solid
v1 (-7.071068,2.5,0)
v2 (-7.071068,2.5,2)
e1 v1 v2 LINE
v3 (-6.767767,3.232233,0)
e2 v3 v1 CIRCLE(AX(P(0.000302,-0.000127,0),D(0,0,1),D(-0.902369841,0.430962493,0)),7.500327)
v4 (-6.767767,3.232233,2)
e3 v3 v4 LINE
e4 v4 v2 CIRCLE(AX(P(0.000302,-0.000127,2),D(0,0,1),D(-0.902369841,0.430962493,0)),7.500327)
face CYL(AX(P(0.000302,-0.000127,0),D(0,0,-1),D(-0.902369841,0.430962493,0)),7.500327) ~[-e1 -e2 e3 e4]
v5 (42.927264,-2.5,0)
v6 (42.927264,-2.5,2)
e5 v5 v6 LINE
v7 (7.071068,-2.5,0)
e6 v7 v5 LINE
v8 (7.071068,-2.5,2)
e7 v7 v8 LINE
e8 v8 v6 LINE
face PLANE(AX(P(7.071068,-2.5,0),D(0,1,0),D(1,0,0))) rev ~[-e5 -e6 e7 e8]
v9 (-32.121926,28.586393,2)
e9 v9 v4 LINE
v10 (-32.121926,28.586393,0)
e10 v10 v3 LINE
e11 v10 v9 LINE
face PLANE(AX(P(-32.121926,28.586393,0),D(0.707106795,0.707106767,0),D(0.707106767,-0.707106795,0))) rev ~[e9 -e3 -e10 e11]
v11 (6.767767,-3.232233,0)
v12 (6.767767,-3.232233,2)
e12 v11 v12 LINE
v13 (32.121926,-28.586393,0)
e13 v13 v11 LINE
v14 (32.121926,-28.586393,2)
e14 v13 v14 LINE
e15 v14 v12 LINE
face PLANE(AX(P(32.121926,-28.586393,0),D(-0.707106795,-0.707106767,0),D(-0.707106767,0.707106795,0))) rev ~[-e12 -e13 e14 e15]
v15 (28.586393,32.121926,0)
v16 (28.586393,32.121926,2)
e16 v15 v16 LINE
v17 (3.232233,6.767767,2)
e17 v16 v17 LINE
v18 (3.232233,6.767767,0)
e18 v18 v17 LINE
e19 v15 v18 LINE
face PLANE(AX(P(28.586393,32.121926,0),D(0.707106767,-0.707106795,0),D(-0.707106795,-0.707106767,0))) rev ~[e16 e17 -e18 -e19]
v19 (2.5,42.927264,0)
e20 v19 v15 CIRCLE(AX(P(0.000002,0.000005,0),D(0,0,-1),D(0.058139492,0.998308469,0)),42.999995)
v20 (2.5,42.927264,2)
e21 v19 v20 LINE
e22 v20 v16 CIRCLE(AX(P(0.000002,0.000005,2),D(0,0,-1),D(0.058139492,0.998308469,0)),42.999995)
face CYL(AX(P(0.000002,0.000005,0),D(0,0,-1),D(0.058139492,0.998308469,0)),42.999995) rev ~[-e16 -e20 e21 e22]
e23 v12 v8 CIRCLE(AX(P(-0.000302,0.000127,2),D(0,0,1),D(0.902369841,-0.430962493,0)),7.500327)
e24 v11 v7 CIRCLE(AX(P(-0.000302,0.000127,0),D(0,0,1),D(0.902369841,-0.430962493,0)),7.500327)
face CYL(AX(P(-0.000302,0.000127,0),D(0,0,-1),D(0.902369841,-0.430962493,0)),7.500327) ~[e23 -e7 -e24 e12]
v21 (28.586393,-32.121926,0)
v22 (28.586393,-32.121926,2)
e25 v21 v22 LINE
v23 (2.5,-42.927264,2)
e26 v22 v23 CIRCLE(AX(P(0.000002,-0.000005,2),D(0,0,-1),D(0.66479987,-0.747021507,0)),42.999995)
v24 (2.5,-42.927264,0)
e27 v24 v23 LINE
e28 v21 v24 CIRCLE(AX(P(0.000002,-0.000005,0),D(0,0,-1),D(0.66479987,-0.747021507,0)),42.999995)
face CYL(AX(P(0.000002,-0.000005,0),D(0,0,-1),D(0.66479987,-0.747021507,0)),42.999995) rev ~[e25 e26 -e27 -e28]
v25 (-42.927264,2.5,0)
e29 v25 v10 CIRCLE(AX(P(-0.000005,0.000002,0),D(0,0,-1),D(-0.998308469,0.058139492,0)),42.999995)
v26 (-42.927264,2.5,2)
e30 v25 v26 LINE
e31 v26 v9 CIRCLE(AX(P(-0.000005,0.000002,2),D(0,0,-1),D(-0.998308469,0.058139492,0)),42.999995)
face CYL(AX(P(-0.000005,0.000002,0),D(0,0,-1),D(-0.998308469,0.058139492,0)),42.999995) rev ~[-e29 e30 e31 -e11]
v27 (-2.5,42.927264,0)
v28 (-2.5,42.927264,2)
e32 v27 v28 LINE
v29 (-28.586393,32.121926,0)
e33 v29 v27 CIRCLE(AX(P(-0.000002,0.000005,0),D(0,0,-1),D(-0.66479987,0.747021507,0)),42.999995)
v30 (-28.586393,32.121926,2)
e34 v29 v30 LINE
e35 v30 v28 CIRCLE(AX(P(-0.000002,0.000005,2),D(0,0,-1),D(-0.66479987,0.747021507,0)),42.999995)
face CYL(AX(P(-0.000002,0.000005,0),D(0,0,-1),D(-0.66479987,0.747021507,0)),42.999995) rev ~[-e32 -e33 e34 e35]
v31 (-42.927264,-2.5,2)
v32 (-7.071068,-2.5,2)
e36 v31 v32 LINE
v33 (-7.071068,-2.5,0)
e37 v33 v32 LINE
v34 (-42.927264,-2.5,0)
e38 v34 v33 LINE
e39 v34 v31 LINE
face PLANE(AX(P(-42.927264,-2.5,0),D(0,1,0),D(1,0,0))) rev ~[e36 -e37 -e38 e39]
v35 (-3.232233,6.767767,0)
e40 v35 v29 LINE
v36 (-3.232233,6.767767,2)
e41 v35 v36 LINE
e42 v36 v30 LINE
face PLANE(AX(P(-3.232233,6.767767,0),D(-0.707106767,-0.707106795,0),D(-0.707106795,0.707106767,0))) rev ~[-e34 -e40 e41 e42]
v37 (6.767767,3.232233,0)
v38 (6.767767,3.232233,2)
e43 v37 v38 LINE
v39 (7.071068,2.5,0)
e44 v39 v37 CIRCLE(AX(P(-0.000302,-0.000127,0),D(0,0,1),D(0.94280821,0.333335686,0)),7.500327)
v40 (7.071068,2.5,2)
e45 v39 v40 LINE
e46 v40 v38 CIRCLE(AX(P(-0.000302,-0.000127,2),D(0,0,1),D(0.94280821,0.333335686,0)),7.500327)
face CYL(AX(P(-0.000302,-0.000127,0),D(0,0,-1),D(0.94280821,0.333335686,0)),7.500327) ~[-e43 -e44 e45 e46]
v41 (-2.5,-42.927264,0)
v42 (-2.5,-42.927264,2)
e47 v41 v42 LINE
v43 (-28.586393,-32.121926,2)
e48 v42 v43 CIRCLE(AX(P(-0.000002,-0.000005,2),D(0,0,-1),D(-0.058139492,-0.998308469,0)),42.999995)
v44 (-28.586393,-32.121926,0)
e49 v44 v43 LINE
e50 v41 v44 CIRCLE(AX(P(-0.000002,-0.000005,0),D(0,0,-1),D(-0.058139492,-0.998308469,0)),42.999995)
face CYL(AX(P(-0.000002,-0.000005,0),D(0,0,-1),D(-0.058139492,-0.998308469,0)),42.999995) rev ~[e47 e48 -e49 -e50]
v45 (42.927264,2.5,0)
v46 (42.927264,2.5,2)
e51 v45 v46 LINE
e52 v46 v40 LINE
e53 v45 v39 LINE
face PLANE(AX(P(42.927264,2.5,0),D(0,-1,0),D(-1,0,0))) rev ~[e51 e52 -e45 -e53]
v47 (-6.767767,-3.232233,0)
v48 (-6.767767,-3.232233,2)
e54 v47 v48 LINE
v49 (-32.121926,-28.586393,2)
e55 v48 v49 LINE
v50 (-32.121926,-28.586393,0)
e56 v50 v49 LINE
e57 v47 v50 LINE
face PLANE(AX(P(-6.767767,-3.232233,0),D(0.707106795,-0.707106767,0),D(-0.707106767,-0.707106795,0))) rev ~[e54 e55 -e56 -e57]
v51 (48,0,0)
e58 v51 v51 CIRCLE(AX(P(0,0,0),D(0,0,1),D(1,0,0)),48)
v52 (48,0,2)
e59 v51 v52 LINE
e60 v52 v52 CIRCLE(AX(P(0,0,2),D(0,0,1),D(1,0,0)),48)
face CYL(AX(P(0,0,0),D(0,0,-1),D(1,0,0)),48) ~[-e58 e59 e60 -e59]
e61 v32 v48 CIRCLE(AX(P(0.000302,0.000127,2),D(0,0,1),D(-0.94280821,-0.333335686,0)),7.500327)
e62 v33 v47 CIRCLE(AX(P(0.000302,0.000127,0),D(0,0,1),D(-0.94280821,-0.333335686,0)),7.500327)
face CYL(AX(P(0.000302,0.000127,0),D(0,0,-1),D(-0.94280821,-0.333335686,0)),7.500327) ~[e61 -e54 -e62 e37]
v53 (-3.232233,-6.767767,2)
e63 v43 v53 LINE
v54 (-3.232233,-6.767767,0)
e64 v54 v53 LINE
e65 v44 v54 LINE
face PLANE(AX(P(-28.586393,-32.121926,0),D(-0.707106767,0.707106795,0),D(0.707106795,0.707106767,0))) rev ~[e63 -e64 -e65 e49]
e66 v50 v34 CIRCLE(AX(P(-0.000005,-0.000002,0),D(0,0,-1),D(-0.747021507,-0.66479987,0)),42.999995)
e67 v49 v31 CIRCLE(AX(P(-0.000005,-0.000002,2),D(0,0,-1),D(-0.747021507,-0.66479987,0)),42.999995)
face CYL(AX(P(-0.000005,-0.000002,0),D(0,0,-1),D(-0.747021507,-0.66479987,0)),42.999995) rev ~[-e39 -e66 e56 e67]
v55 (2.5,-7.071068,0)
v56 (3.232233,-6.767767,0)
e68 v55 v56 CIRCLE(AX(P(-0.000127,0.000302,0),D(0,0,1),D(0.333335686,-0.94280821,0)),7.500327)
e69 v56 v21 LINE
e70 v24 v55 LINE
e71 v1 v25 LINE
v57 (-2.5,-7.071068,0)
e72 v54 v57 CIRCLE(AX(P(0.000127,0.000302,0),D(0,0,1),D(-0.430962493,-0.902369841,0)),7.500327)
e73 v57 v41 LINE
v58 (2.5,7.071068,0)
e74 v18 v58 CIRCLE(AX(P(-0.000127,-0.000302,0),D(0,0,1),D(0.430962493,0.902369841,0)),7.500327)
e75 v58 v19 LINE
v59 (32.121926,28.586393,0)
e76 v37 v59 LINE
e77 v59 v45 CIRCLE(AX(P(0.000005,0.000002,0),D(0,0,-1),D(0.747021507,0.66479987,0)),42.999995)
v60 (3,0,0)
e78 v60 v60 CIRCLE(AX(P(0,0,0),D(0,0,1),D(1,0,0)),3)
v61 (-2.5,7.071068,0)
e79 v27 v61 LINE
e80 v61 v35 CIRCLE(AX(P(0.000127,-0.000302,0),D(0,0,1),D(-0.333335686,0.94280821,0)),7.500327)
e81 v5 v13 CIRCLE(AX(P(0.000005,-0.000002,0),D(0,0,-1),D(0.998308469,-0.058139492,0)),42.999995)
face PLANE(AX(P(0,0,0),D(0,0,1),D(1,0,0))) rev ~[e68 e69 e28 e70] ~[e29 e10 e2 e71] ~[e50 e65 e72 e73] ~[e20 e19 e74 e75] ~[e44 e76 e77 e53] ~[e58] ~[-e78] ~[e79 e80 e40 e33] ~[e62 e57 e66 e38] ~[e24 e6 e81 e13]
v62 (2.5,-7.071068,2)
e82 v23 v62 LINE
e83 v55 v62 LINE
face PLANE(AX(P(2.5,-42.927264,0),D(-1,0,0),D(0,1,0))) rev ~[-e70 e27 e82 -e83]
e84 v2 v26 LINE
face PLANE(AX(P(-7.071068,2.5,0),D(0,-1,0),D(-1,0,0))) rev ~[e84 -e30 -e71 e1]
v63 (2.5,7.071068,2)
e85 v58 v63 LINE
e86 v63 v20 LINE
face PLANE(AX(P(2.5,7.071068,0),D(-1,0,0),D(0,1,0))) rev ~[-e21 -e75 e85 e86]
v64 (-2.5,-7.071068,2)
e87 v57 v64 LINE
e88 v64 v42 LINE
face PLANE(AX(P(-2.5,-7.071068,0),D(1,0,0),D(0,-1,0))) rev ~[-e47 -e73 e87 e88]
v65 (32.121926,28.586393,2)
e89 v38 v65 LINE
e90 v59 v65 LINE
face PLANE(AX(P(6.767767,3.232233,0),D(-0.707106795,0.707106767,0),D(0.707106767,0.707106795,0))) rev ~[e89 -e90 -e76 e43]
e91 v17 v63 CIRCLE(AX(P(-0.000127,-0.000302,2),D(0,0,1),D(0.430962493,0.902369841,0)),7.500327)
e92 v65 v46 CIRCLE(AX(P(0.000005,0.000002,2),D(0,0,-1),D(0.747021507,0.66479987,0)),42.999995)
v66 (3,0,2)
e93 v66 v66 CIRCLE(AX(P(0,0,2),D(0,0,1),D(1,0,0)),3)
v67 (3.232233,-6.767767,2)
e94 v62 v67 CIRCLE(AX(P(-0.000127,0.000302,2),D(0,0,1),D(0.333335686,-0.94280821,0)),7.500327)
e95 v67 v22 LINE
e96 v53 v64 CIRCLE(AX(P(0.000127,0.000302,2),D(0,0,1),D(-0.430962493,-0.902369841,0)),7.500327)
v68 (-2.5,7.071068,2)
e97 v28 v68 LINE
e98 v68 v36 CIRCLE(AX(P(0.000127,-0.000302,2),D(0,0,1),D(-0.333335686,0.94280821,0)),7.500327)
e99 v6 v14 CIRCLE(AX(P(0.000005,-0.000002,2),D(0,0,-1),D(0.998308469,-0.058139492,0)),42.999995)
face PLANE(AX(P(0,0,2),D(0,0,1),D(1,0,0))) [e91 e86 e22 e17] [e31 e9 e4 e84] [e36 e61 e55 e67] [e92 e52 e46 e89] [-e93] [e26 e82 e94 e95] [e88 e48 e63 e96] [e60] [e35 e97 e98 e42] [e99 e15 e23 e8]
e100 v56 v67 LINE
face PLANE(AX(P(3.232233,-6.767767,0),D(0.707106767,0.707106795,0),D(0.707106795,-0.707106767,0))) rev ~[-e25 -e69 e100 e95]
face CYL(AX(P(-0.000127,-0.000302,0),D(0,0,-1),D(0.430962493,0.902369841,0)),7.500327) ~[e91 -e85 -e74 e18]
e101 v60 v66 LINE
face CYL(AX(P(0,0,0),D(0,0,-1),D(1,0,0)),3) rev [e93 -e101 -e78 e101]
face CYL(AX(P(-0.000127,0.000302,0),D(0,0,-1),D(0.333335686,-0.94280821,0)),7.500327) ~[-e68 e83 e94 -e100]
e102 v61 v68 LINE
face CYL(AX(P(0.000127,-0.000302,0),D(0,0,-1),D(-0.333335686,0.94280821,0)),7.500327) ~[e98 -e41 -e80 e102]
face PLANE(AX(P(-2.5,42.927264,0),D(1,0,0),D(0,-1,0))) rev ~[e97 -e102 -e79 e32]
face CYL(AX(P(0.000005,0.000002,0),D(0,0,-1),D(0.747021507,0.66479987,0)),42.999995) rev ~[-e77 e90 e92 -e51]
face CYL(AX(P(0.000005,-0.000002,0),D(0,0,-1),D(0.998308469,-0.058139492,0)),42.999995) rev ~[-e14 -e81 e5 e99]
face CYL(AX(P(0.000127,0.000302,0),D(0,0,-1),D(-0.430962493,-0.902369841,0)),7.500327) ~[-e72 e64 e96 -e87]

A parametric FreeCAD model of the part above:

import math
import FreeCAD as App
import Part
import Sketcher
Q = App.Units.Quantity

doc = App.newDocument("Part")
params = doc.addObject("Spreadsheet::Sheet", "Params")
for row, (alias, value) in enumerate([
    ("sketch1_diameter", "96 mm"),
    ("sketch1_diameter2", "6 mm"),
    ("pad1_length", "2 mm"),
], start=1):
    params.set(f"A{row}", alias)
    params.set(f"B{row}", "=" + value)
    params.setAlias(f"B{row}", alias)

body = doc.addObject("PartDesign::Body", "Body")

# Sketch on XY plane
sketch1 = body.newObject("Sketcher::SketchObject", "Sketch")
sketch1.AttachmentSupport = (doc.getObject("XY_Plane"), [""])
sketch1.MapMode = "FlatFace"
sketch1.addGeometry(Part.Circle(App.Vector(0, 0, 0), App.Vector(0, 0, 1), 48), False)
sketch1.addGeometry(Part.ArcOfCircle(Part.Circle(App.Vector(-0.000002, -0.000005, 0), App.Vector(0, 0, 1), 42.999995), math.radians(-131.666974), math.radians(-93.333027)), False)
sketch1.addGeometry(Part.LineSegment(App.Vector(-28.586393, -32.121926, 0), App.Vector(-3.232233, -6.767767, 0)), False)
sketch1.addGeometry(Part.ArcOfCircle(Part.Circle(App.Vector(0.000127, 0.000302, 0), App.Vector(0, 0, 1), 7.500327), math.radians(-115.528658), math.radians(-109.471364)), False)
sketch1.addGeometry(Part.LineSegment(App.Vector(-2.5, -7.071068, 0), App.Vector(-2.5, -42.927264, 0)), False)
sketch1.addGeometry(Part.LineSegment(App.Vector(-6.767767, -3.232233, 0), App.Vector(-32.121926, -28.586393, 0)), False)
sketch1.addGeometry(Part.ArcOfCircle(Part.Circle(App.Vector(-0.000005, -0.000002, 0), App.Vector(0, 0, 1), 42.999995), math.radians(-176.666973), math.radians(-138.333026)), False)
sketch1.addGeometry(Part.LineSegment(App.Vector(-42.927264, -2.5, 0), App.Vector(-7.071068, -2.5, 0)), False)
sketch1.addGeometry(Part.ArcOfCircle(Part.Circle(App.Vector(0.000302, 0.000127, 0), App.Vector(0, 0, 1), 7.500327), math.radians(-160.528636), math.radians(-154.471342)), False)
sketch1.addGeometry(Part.ArcOfCircle(Part.Circle(App.Vector(0.000002, -0.000005, 0), App.Vector(0, 0, 1), 42.999995), math.radians(-86.666973), math.radians(-48.333026)), False)
sketch1.addGeometry(Part.LineSegment(App.Vector(2.5, -42.927264, 0), App.Vector(2.5, -7.071068, 0)), False)
sketch1.addGeometry(Part.ArcOfCircle(Part.Circle(App.Vector(-0.000127, 0.000302, 0), App.Vector(0, 0, 1), 7.500327), math.radians(-70.528636), math.radians(-64.471342)), False)
sketch1.addGeometry(Part.LineSegment(App.Vector(3.232233, -6.767767, 0), App.Vector(28.586393, -32.121926, 0)), False)
sketch1.addGeometry(Part.ArcOfCircle(Part.Circle(App.Vector(0.000005, -0.000002, 0), App.Vector(0, 0, 1), 42.999995), math.radians(-41.666974), math.radians(-3.333027)), False)
sketch1.addGeometry(Part.LineSegment(App.Vector(32.121926, -28.586393, 0), App.Vector(6.767767, -3.232233, 0)), False)
sketch1.addGeometry(Part.ArcOfCircle(Part.Circle(App.Vector(-0.000302, 0.000127, 0), App.Vector(0, 0, 1), 7.500327), math.radians(-25.528658), math.radians(-19.471364)), False)
sketch1.addGeometry(Part.LineSegment(App.Vector(7.071068, -2.5, 0), App.Vector(42.927264, -2.5, 0)), False)
sketch1.addGeometry(Part.LineSegment(App.Vector(-7.071068, 2.5, 0), App.Vector(-42.927264, 2.5, 0)), False)
sketch1.addGeometry(Part.ArcOfCircle(Part.Circle(App.Vector(-0.000005, 0.000002, 0), App.Vector(0, 0, 1), 42.999995), math.radians(138.333026), math.radians(176.666973)), False)
sketch1.addGeometry(Part.LineSegment(App.Vector(-32.121926, 28.586393, 0), App.Vector(-6.767767, 3.232233, 0)), False)
sketch1.addGeometry(Part.ArcOfCircle(Part.Circle(App.Vector(0.000302, -0.000127, 0), App.Vector(0, 0, 1), 7.500327), math.radians(154.471342), math.radians(160.528636)), False)
sketch1.addGeometry(Part.LineSegment(App.Vector(-3.232233, 6.767767, 0), App.Vector(-28.586393, 32.121926, 0)), False)
sketch1.addGeometry(Part.ArcOfCircle(Part.Circle(App.Vector(-0.000002, 0.000005, 0), App.Vector(0, 0, 1), 42.999995), math.radians(93.333027), math.radians(131.666974)), False)
sketch1.addGeometry(Part.LineSegment(App.Vector(-2.5, 42.927264, 0), App.Vector(-2.5, 7.071068, 0)), False)
sketch1.addGeometry(Part.ArcOfCircle(Part.Circle(App.Vector(0.000127, -0.000302, 0), App.Vector(0, 0, 1), 7.500327), math.radians(109.471364), math.radians(115.528658)), False)
sketch1.addGeometry(Part.Circle(App.Vector(0, 0, 0), App.Vector(0, 0, 1), 3), False)
sketch1.addGeometry(Part.ArcOfCircle(Part.Circle(App.Vector(0.000005, 0.000002, 0), App.Vector(0, 0, 1), 42.999995), math.radians(3.333027), math.radians(41.666974)), False)
sketch1.addGeometry(Part.LineSegment(App.Vector(42.927264, 2.5, 0), App.Vector(7.071068, 2.5, 0)), False)
sketch1.addGeometry(Part.ArcOfCircle(Part.Circle(App.Vector(-0.000302, -0.000127, 0), App.Vector(0, 0, 1), 7.500327), math.radians(19.471364), math.radians(25.528658)), False)
sketch1.addGeometry(Part.LineSegment(App.Vector(6.767767, 3.232233, 0), App.Vector(32.121926, 28.586393, 0)), False)
sketch1.addGeometry(Part.ArcOfCircle(Part.Circle(App.Vector(-0.000127, -0.000302, 0), App.Vector(0, 0, 1), 7.500327), math.radians(64.471342), math.radians(70.528636)), False)
sketch1.addGeometry(Part.LineSegment(App.Vector(2.5, 7.071068, 0), App.Vector(2.5, 42.927264, 0)), False)
sketch1.addGeometry(Part.ArcOfCircle(Part.Circle(App.Vector(0.000002, 0.000005, 0), App.Vector(0, 0, 1), 42.999995), math.radians(48.333026), math.radians(86.666973)), False)
sketch1.addGeometry(Part.LineSegment(App.Vector(28.586393, 32.121926, 0), App.Vector(3.232233, 6.767767, 0)), False)
sketch1.addConstraint(Sketcher.Constraint("Coincident", 1, 1, 2, 1))
sketch1.addConstraint(Sketcher.Constraint("Coincident", 2, 2, 3, 1))
sketch1.addConstraint(Sketcher.Constraint("Coincident", 3, 2, 4, 1))
sketch1.addConstraint(Sketcher.Constraint("Coincident", 4, 2, 1, 2))
sketch1.addConstraint(Sketcher.Constraint("Coincident", 5, 2, 6, 2))
sketch1.addConstraint(Sketcher.Constraint("Coincident", 6, 1, 7, 1))
sketch1.addConstraint(Sketcher.Constraint("Coincident", 7, 2, 8, 1))
sketch1.addConstraint(Sketcher.Constraint("Coincident", 8, 2, 5, 1))
sketch1.addConstraint(Sketcher.Constraint("Coincident", 9, 1, 10, 1))
sketch1.addConstraint(Sketcher.Constraint("Coincident", 10, 2, 11, 1))
sketch1.addConstraint(Sketcher.Constraint("Coincident", 11, 2, 12, 1))
sketch1.addConstraint(Sketcher.Constraint("Coincident", 12, 2, 9, 2))
sketch1.addConstraint(Sketcher.Constraint("Coincident", 13, 1, 14, 1))
sketch1.addConstraint(Sketcher.Constraint("Coincident", 14, 2, 15, 1))
sketch1.addConstraint(Sketcher.Constraint("Coincident", 15, 2, 16, 1))
sketch1.addConstraint(Sketcher.Constraint("Coincident", 16, 2, 13, 2))
sketch1.addConstraint(Sketcher.Constraint("Coincident", 17, 2, 18, 2))
sketch1.addConstraint(Sketcher.Constraint("Coincident", 18, 1, 19, 1))
sketch1.addConstraint(Sketcher.Constraint("Coincident", 19, 2, 20, 1))
sketch1.addConstraint(Sketcher.Constraint("Coincident", 20, 2, 17, 1))
sketch1.addConstraint(Sketcher.Constraint("Coincident", 21, 2, 22, 2))
sketch1.addConstraint(Sketcher.Constraint("Coincident", 22, 1, 23, 1))
sketch1.addConstraint(Sketcher.Constraint("Coincident", 23, 2, 24, 1))
sketch1.addConstraint(Sketcher.Constraint("Coincident", 24, 2, 21, 1))
sketch1.addConstraint(Sketcher.Constraint("Coincident", 26, 1, 27, 1))
sketch1.addConstraint(Sketcher.Constraint("Coincident", 27, 2, 28, 1))
sketch1.addConstraint(Sketcher.Constraint("Coincident", 28, 2, 29, 1))
sketch1.addConstraint(Sketcher.Constraint("Coincident", 29, 2, 26, 2))
sketch1.addConstraint(Sketcher.Constraint("Coincident", 30, 2, 31, 1))
sketch1.addConstraint(Sketcher.Constraint("Coincident", 31, 2, 32, 2))
sketch1.addConstraint(Sketcher.Constraint("Coincident", 32, 1, 33, 1))
sketch1.addConstraint(Sketcher.Constraint("Coincident", 33, 2, 30, 1))
sketch1.addConstraint(Sketcher.Constraint("Vertical", 4))
sketch1.addConstraint(Sketcher.Constraint("Horizontal", 7))
sketch1.addConstraint(Sketcher.Constraint("Vertical", 10))
sketch1.addConstraint(Sketcher.Constraint("Horizontal", 16))
sketch1.addConstraint(Sketcher.Constraint("Horizontal", 17))
sketch1.addConstraint(Sketcher.Constraint("Vertical", 23))
sketch1.addConstraint(Sketcher.Constraint("Horizontal", 27))
sketch1.addConstraint(Sketcher.Constraint("Vertical", 31))
sketch1.addConstraint(Sketcher.Constraint("Coincident", 0, 3, -1, 1))
sketch1.addConstraint(Sketcher.Constraint("Coincident", 1, 3, -1, 1))
sketch1.addConstraint(Sketcher.Constraint("Coincident", 6, 3, -1, 1))
sketch1.addConstraint(Sketcher.Constraint("Coincident", 9, 3, -1, 1))
sketch1.addConstraint(Sketcher.Constraint("Coincident", 13, 3, -1, 1))
sketch1.addConstraint(Sketcher.Constraint("Coincident", 18, 3, -1, 1))
sketch1.addConstraint(Sketcher.Constraint("Coincident", 22, 3, -1, 1))
sketch1.addConstraint(Sketcher.Constraint("Coincident", 25, 3, -1, 1))
sketch1.addConstraint(Sketcher.Constraint("Coincident", 26, 3, -1, 1))
sketch1.addConstraint(Sketcher.Constraint("Coincident", 32, 3, -1, 1))
sketch1.addConstraint(Sketcher.Constraint("Equal", 1, 6))
sketch1.addConstraint(Sketcher.Constraint("Equal", 3, 8))
sketch1.addConstraint(Sketcher.Constraint("Equal", 6, 9))
sketch1.addConstraint(Sketcher.Constraint("Equal", 8, 11))
sketch1.addConstraint(Sketcher.Constraint("Equal", 9, 13))
sketch1.addConstraint(Sketcher.Constraint("Equal", 11, 15))
sketch1.addConstraint(Sketcher.Constraint("Equal", 13, 18))
sketch1.addConstraint(Sketcher.Constraint("Equal", 15, 20))
sketch1.addConstraint(Sketcher.Constraint("Equal", 18, 22))
sketch1.addConstraint(Sketcher.Constraint("Equal", 20, 24))
sketch1.addConstraint(Sketcher.Constraint("Equal", 22, 26))
sketch1.addConstraint(Sketcher.Constraint("Equal", 24, 28))
sketch1.addConstraint(Sketcher.Constraint("Equal", 28, 30))
sketch1.addConstraint(Sketcher.Constraint("Equal", 26, 32))
sketch1.addConstraint(Sketcher.Constraint("Symmetric", 15, 3, 20, 3, -1, 1))
sketch1.addConstraint(Sketcher.Constraint("Symmetric", 11, 3, 24, 3, -1, 1))
sketch1.addConstraint(Sketcher.Constraint("Symmetric", 8, 3, 28, 3, -1, 1))
sketch1.addConstraint(Sketcher.Constraint("Symmetric", 3, 3, 30, 3, -1, 1))
sketch1.addConstraint(Sketcher.Constraint("Symmetric", 3, 3, 11, 3, -2))
sketch1.addConstraint(Sketcher.Constraint("Symmetric", 8, 3, 15, 3, -2))
sketch1.addConstraint(Sketcher.Constraint("Parallel", 2, 5))
sketch1.addConstraint(Sketcher.Constraint("Perpendicular", 5, 12))
sketch1.addConstraint(Sketcher.Constraint("Parallel", 12, 14))
sketch1.addConstraint(Sketcher.Constraint("Parallel", 14, 19))
sketch1.addConstraint(Sketcher.Constraint("Parallel", 19, 21))
sketch1.addConstraint(Sketcher.Constraint("Perpendicular", 21, 29))
sketch1.addConstraint(Sketcher.Constraint("Parallel", 29, 33))
sketch1.addConstraint(Sketcher.Constraint("Horizontal", 4, 2, 9, 1))
sketch1.addConstraint(Sketcher.Constraint("Horizontal", 2, 2, 11, 2))
sketch1.addConstraint(Sketcher.Constraint("Horizontal", 1, 1, 12, 2))
sketch1.addConstraint(Sketcher.Constraint("Horizontal", 5, 2, 13, 1))
sketch1.addConstraint(Sketcher.Constraint("Horizontal", 7, 2, 15, 2))
sketch1.addConstraint(Sketcher.Constraint("Horizontal", 20, 2, 26, 1))
sketch1.addConstraint(Sketcher.Constraint("Horizontal", 19, 2, 28, 2))
sketch1.addConstraint(Sketcher.Constraint("Horizontal", 23, 2, 30, 2))
sketch1.addConstraint(Sketcher.Constraint("Horizontal", 21, 2, 32, 1))
sketch1.addConstraint(Sketcher.Constraint("Vertical", 6, 1, 17, 2))
sketch1.addConstraint(Sketcher.Constraint("Vertical", 5, 2, 18, 1))
sketch1.addConstraint(Sketcher.Constraint("Vertical", 1, 1, 21, 2))
sketch1.addConstraint(Sketcher.Constraint("Vertical", 4, 2, 22, 1))
sketch1.addConstraint(Sketcher.Constraint("Equal", 27, 4))
sketch1.addConstraint(Sketcher.Constraint("Equal", 2, 5))
sketch1.addConstraint(Sketcher.Constraint("Diameter", 0, Q("96 mm")))
sketch1.addConstraint(Sketcher.Constraint("Diameter", 25, Q("6 mm")))
sketch1.addConstraint(Sketcher.Constraint("DistanceX", 4, 2, 9, 1, Q("5 mm")))
sketch1.addConstraint(Sketcher.Constraint("DistanceY", 6, 1, 17, 2, Q("5 mm")))
sketch1.addConstraint(Sketcher.Constraint("Radius", 1, Q("42.999995 mm")))
sketch1.addConstraint(Sketcher.Constraint("Radius", 3, Q("7.500327 mm")))
sketch1.addConstraint(Sketcher.Constraint("DistanceX", 9, 3, 8, 3, Q("0.0003 mm")))
sketch1.addConstraint(Sketcher.Constraint("DistanceY", 24, 3, 13, 3, Q("0.0003 mm")))
sketch1.addConstraint(Sketcher.Constraint("DistanceY", 1, 1, 28, 3, Q("32.121799 mm")))
sketch1.addConstraint(Sketcher.Constraint("DistanceY", 3, 2, 2, 2, Q("0.303301 mm")))
sketch1.setExpression("Constraints[92]", "Params.sketch1_diameter")
sketch1.setExpression("Constraints[93]", "Params.sketch1_diameter2")
pad1 = body.newObject("PartDesign::Pad", "Pad")
pad1.Profile = sketch1
pad1.setExpression("Length", "Params.pad1_length")

doc.recompute()
